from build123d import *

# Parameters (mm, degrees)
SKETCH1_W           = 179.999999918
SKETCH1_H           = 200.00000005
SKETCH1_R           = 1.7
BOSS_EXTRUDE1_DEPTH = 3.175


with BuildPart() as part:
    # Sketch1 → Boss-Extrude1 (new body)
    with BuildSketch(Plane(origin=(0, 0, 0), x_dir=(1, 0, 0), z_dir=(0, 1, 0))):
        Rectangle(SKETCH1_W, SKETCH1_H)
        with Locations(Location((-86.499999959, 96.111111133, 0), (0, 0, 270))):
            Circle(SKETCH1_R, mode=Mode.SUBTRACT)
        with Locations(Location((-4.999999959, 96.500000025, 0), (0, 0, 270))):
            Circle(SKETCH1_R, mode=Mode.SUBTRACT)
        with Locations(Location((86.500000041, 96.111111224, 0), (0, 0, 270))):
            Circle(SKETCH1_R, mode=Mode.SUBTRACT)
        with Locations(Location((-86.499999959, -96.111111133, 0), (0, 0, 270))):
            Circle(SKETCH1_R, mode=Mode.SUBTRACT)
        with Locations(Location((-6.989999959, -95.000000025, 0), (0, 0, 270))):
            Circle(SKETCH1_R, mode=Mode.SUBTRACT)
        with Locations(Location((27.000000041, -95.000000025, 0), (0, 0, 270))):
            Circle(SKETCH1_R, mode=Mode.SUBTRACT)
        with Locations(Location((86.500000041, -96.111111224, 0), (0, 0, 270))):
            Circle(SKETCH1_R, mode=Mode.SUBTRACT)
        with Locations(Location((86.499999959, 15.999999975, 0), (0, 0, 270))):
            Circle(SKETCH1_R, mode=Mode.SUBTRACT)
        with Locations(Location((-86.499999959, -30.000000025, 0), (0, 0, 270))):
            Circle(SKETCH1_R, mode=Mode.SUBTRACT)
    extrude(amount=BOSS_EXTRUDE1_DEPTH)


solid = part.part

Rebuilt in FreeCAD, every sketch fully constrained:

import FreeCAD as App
import Part
import Sketcher
from FreeCAD import Vector

doc = App.newDocument("Part")
body = doc.addObject("PartDesign::Body", "Body")

sketch1 = body.newObject("Sketcher::SketchObject", "Sketch")
sketch1.AttachmentSupport = (doc.getObject("XZ_Plane"), [""])
sketch1.MapMode = "FlatFace"
sketch1.addGeometry(Part.LineSegment(Vector(-90, -100, 0), Vector(-90, 100, 0)), False)
sketch1.addGeometry(Part.LineSegment(Vector(-90, 100, 0), Vector(90, 100, 0)), False)
sketch1.addGeometry(Part.LineSegment(Vector(90, 100, 0), Vector(90, -100, 0)), False)
sketch1.addGeometry(Part.LineSegment(Vector(90, -100, 0), Vector(-90, -100, 0)), False)
sketch1.addGeometry(Part.Circle(Vector(-86.5, 96.111111, 0), Vector(0, 0, 1), 1.7), False)
sketch1.addGeometry(Part.Circle(Vector(-6.99, 95, 0), Vector(0, 0, 1), 1.7), False)
sketch1.addGeometry(Part.Circle(Vector(-86.5, 30, 0), Vector(0, 0, 1), 1.7), False)
sketch1.addGeometry(Part.Circle(Vector(27, 95, 0), Vector(0, 0, 1), 1.7), False)
sketch1.addGeometry(Part.Circle(Vector(86.5, 96.111111, 0), Vector(0, 0, 1), 1.7), False)
sketch1.addGeometry(Part.Circle(Vector(-86.5, -96.111111, 0), Vector(0, 0, 1), 1.7), False)
sketch1.addGeometry(Part.Circle(Vector(-5, -96.5, 0), Vector(0, 0, 1), 1.7), False)
sketch1.addGeometry(Part.Circle(Vector(86.5, -16, 0), Vector(0, 0, 1), 1.7), False)
sketch1.addGeometry(Part.Circle(Vector(86.5, -96.111111, 0), Vector(0, 0, 1), 1.7), False)
sketch1.addConstraint(Sketcher.Constraint("Coincident", 0, 2, 1, 1))
sketch1.addConstraint(Sketcher.Constraint("Coincident", 1, 2, 2, 1))
sketch1.addConstraint(Sketcher.Constraint("Coincident", 2, 2, 3, 1))
sketch1.addConstraint(Sketcher.Constraint("Coincident", 3, 2, 0, 1))
sketch1.addConstraint(Sketcher.Constraint("Vertical", 0))
sketch1.addConstraint(Sketcher.Constraint("Horizontal", 1))
sketch1.addConstraint(Sketcher.Constraint("Vertical", 2))
sketch1.addConstraint(Sketcher.Constraint("Horizontal", 3))
sketch1.addConstraint(Sketcher.Constraint("Equal", 4, 5))
sketch1.addConstraint(Sketcher.Constraint("Equal", 5, 6))
sketch1.addConstraint(Sketcher.Constraint("Equal", 6, 7))
sketch1.addConstraint(Sketcher.Constraint("Equal", 7, 8))
sketch1.addConstraint(Sketcher.Constraint("Equal", 8, 9))
sketch1.addConstraint(Sketcher.Constraint("Equal", 9, 10))
sketch1.addConstraint(Sketcher.Constraint("Equal", 10, 11))
sketch1.addConstraint(Sketcher.Constraint("Equal", 11, 12))
sketch1.addConstraint(Sketcher.Constraint("Symmetric", 8, 3, 9, 3, -1, 1))
sketch1.addConstraint(Sketcher.Constraint("Symmetric", 4, 3, 12, 3, -1, 1))
sketch1.addConstraint(Sketcher.Constraint("Symmetric", 0, 2, 2, 2, -1, 1))
sketch1.addConstraint(Sketcher.Constraint("Symmetric", 4, 3, 8, 3, -2))
sketch1.addConstraint(Sketcher.Constraint("Horizontal", 5, 3, 7, 3))
sketch1.addConstraint(Sketcher.Constraint("Vertical", 4, 3, 6, 3))
sketch1.addConstraint(Sketcher.Constraint("Vertical", 8, 3, 11, 3))
sketch1.addConstraint(Sketcher.Constraint("Diameter", 4, 3.4))
sketch1.addConstraint(Sketcher.Constraint("DistanceX", 1, 1, 1, 2, 180.0))
sketch1.addConstraint(Sketcher.Constraint("DistanceY", 0, 1, 0, 2, 200.0))
sketch1.addConstraint(Sketcher.Constraint("DistanceY", -1, 1, 5, 3, 95.0))
sketch1.addConstraint(Sketcher.Constraint("DistanceY", -1, 1, 6, 3, 30.0))
sketch1.addConstraint(Sketcher.Constraint("DistanceX", -1, 1, 7, 3, 27.0))
sketch1.addConstraint(Sketcher.Constraint("DistanceX", 10, 3, -1, 1, 5.0))
sketch1.addConstraint(Sketcher.Constraint("DistanceY", 11, 3, -1, 1, 16.0))
sketch1.addConstraint(Sketcher.Constraint("DistanceX", 4, 3, 8, 3, 173.0))
sketch1.addConstraint(Sketcher.Constraint("DistanceY", 10, 3, -1, 1, 96.5))
sketch1.addConstraint(Sketcher.Constraint("DistanceX", 5, 3, -1, 1, 6.99))
sketch1.addConstraint(Sketcher.Constraint("DistanceY", -1, 1, 4, 3, 96.111111))
pad1 = body.newObject("PartDesign::Pad", "Pad")
pad1.Profile = sketch1
pad1.Length = 3.175
pad1.Reversed = True

doc.recompute()
